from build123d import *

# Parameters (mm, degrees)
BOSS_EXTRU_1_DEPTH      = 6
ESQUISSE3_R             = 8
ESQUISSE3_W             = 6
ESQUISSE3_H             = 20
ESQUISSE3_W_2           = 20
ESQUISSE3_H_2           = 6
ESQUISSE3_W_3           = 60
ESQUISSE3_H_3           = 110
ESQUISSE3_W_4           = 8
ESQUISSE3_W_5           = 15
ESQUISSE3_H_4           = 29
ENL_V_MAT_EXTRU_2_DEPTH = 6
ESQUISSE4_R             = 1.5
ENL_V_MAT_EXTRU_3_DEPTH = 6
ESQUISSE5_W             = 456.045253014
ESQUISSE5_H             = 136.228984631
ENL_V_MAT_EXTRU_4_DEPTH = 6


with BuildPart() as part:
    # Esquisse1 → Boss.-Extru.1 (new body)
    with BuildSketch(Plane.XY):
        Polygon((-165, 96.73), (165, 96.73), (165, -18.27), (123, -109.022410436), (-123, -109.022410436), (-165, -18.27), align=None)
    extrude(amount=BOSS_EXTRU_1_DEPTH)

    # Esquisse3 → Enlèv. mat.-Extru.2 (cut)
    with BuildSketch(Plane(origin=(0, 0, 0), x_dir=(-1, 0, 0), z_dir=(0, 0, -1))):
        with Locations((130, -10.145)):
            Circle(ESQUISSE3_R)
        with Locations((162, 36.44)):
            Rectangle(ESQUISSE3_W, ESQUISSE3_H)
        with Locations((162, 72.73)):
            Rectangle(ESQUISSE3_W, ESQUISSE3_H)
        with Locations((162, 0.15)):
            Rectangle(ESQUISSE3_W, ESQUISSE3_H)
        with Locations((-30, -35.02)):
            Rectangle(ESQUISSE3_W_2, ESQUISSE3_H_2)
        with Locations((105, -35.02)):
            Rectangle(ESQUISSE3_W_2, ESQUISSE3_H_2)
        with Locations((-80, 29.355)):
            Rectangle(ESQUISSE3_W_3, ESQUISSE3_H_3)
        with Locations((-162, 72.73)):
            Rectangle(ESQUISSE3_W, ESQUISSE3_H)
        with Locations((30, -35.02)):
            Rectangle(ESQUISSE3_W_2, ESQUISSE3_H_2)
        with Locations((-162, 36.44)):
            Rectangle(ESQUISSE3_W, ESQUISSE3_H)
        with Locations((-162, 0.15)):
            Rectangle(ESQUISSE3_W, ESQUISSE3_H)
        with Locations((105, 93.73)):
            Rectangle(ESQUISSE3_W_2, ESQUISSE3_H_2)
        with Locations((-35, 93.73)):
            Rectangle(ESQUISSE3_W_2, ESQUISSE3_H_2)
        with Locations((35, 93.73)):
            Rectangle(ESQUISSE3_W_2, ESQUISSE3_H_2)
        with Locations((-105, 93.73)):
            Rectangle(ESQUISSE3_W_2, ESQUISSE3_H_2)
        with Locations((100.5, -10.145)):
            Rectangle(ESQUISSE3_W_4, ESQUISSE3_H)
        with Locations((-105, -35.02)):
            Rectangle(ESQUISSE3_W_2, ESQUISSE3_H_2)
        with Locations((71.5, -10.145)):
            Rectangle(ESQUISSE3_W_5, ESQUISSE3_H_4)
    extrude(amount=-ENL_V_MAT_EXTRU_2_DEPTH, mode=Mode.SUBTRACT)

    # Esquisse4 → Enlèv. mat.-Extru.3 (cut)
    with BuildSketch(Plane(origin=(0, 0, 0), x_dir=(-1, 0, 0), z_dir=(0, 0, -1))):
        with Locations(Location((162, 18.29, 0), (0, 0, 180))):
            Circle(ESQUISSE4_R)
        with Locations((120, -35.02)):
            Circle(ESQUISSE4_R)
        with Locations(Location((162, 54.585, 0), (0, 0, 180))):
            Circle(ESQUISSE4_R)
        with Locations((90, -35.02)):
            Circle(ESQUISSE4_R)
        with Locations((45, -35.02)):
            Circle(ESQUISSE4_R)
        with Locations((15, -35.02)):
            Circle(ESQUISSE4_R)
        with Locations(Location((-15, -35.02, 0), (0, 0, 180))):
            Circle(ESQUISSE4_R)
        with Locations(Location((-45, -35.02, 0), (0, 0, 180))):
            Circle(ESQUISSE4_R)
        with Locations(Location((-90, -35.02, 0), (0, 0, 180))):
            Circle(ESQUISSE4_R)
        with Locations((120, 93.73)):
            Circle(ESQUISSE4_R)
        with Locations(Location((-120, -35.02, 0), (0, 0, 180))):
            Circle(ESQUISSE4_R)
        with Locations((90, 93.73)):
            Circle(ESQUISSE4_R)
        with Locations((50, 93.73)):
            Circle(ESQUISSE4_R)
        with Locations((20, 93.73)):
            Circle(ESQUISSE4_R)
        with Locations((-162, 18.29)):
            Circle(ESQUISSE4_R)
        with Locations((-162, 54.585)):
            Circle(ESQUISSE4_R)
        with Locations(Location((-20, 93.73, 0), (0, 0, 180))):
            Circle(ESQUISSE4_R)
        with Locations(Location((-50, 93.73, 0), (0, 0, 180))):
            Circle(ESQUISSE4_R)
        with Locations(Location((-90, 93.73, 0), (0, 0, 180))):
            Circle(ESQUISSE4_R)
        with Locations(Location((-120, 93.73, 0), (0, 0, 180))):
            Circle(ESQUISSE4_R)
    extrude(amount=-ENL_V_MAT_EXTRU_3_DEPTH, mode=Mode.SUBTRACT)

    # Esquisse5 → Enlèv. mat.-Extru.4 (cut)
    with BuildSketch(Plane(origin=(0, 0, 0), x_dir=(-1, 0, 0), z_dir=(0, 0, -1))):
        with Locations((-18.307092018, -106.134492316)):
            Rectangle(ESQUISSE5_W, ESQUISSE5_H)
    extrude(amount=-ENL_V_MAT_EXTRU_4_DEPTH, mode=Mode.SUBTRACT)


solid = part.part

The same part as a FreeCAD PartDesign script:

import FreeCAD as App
import Part
import Sketcher

doc = App.newDocument("Part")
params = doc.addObject("Spreadsheet::Sheet", "Params")
for row, (alias, value) in enumerate([
    ("sketch1_width", "330 mm"),
    ("sketch1_width2", "246 mm"),
    ("sketch1_height", "115 mm"),
    ("sketch1_length", "100 mm"),
    ("pad1_length", "6 mm"),
    ("sketch2_diameter", "16 mm"),
    ("sketch2_width", "6 mm"),
    ("sketch2_width2", "20 mm"),
    ("sketch2_width3", "60 mm"),
    ("sketch2_width4", "8 mm"),
    ("pocket1_length", "6 mm"),
    ("sketch3_diameter", "3 mm"),
    ("pocket2_length", "6 mm"),
    ("pocket3_length", "6 mm"),
], start=1):
    params.set(f"A{row}", alias)
    params.set(f"B{row}", "=" + value)
    params.setAlias(f"B{row}", alias)

body = doc.addObject("PartDesign::Body", "Body")

# Sketch on XY plane
sketch1 = body.newObject("Sketcher::SketchObject", "Sketch")
sketch1.AttachmentSupport = (doc.getObject("XY_Plane"), [""])
sketch1.MapMode = "FlatFace"
sketch1.addGeometry(Part.LineSegment(App.Vector(165, 97, 0), App.Vector(-165, 97, 0)), False)
sketch1.addGeometry(Part.LineSegment(App.Vector(-165, 97, 0), App.Vector(-165, -18, 0)), False)
sketch1.addGeometry(Part.LineSegment(App.Vector(-165, -18, 0), App.Vector(-123, -109, 0)), False)
sketch1.addGeometry(Part.LineSegment(App.Vector(-123, -109, 0), App.Vector(123, -109, 0)), False)
sketch1.addGeometry(Part.LineSegment(App.Vector(123, -109, 0), App.Vector(165, -18, 0)), False)
sketch1.addGeometry(Part.LineSegment(App.Vector(165, -18, 0), App.Vector(165, 97, 0)), False)
sketch1.addConstraint(Sketcher.Constraint("Coincident", 0, 2, 1, 1))
sketch1.addConstraint(Sketcher.Constraint("Coincident", 1, 2, 2, 1))
sketch1.addConstraint(Sketcher.Constraint("Coincident", 2, 2, 3, 1))
sketch1.addConstraint(Sketcher.Constraint("Coincident", 3, 2, 4, 1))
sketch1.addConstraint(Sketcher.Constraint("Coincident", 4, 2, 5, 1))
sketch1.addConstraint(Sketcher.Constraint("Coincident", 5, 2, 0, 1))
sketch1.addConstraint(Sketcher.Constraint("Horizontal", 0))
sketch1.addConstraint(Sketcher.Constraint("Vertical", 1))
sketch1.addConstraint(Sketcher.Constraint("Horizontal", 3))
sketch1.addConstraint(Sketcher.Constraint("Vertical", 5))
sketch1.addConstraint(Sketcher.Constraint("Symmetric", 1, 2, 4, 2, -2))
sketch1.addConstraint(Sketcher.Constraint("Equal", 2, 4))
sketch1.addConstraint(Sketcher.Constraint("DistanceX", 0, 2, 0, 1, 330.0))
sketch1.addConstraint(Sketcher.Constraint("DistanceX", 3, 1, 3, 2, 246.0))
sketch1.addConstraint(Sketcher.Constraint("DistanceY", 1, 2, 1, 1, 115.0))
sketch1.addConstraint(Sketcher.Constraint("Distance", 2, 100.0))
sketch1.addConstraint(Sketcher.Constraint("DistanceY", -1, 1, 0, 2, 96.73))
sketch1.setExpression("Constraints[12]", "Params.sketch1_width")
sketch1.setExpression("Constraints[13]", "Params.sketch1_width2")
sketch1.setExpression("Constraints[14]", "Params.sketch1_height")
sketch1.setExpression("Constraints[15]", "Params.sketch1_length")
pad1 = body.newObject("PartDesign::Pad", "Pad")
pad1.Profile = sketch1
pad1.setExpression("Length", "Params.pad1_length")

# Sketch on XY plane
sketch2 = body.newObject("Sketcher::SketchObject", "Sketch001")
sketch2.AttachmentSupport = (doc.getObject("XY_Plane"), [""])
sketch2.MapMode = "FlatFace"
sketch2.addGeometry(Part.Circle(App.Vector(-130, -10, 0), App.Vector(0, 0, 1), 8), False)
sketch2.addGeometry(Part.LineSegment(App.Vector(-159, 46, 0), App.Vector(-159, 26, 0)), False)
sketch2.addGeometry(Part.LineSegment(App.Vector(-159, 26, 0), App.Vector(-165, 26, 0)), False)
sketch2.addGeometry(Part.LineSegment(App.Vector(-165, 26, 0), App.Vector(-165, 46, 0)), False)
sketch2.addGeometry(Part.LineSegment(App.Vector(-165, 46, 0), App.Vector(-159, 46, 0)), False)
sketch2.addGeometry(Part.LineSegment(App.Vector(-159, 83, 0), App.Vector(-159, 63, 0)), False)
sketch2.addGeometry(Part.LineSegment(App.Vector(-159, 63, 0), App.Vector(-165, 63, 0)), False)
sketch2.addGeometry(Part.LineSegment(App.Vector(-165, 63, 0), App.Vector(-165, 83, 0)), False)
sketch2.addGeometry(Part.LineSegment(App.Vector(-165, 83, 0), App.Vector(-159, 83, 0)), False)
sketch2.addGeometry(Part.LineSegment(App.Vector(-159, 10, 0), App.Vector(-159, -10, 0)), False)
sketch2.addGeometry(Part.LineSegment(App.Vector(-159, -10, 0), App.Vector(-165, -10, 0)), False)
sketch2.addGeometry(Part.LineSegment(App.Vector(-165, -10, 0), App.Vector(-165, 10, 0)), False)
sketch2.addGeometry(Part.LineSegment(App.Vector(-165, 10, 0), App.Vector(-159, 10, 0)), False)
sketch2.addGeometry(Part.LineSegment(App.Vector(40, -32, 0), App.Vector(40, -38, 0)), False)
sketch2.addGeometry(Part.LineSegment(App.Vector(40, -38, 0), App.Vector(20, -38, 0)), False)
sketch2.addGeometry(Part.LineSegment(App.Vector(20, -38, 0), App.Vector(20, -32, 0)), False)
sketch2.addGeometry(Part.LineSegment(App.Vector(20, -32, 0), App.Vector(40, -32, 0)), False)
sketch2.addGeometry(Part.LineSegment(App.Vector(-95, -32, 0), App.Vector(-95, -38, 0)), False)
sketch2.addGeometry(Part.LineSegment(App.Vector(-95, -38, 0), App.Vector(-115, -38, 0)), False)
sketch2.addGeometry(Part.LineSegment(App.Vector(-115, -38, 0), App.Vector(-115, -32, 0)), False)
sketch2.addGeometry(Part.LineSegment(App.Vector(-115, -32, 0), App.Vector(-95, -32, 0)), False)
sketch2.addGeometry(Part.LineSegment(App.Vector(110, 84, 0), App.Vector(110, -26, 0)), False)
sketch2.addGeometry(Part.LineSegment(App.Vector(110, -26, 0), App.Vector(50, -26, 0)), False)
sketch2.addGeometry(Part.LineSegment(App.Vector(50, -26, 0), App.Vector(50, 84, 0)), False)
sketch2.addGeometry(Part.LineSegment(App.Vector(50, 84, 0), App.Vector(110, 84, 0)), False)
sketch2.addGeometry(Part.LineSegment(App.Vector(165, 83, 0), App.Vector(165, 63, 0)), False)
sketch2.addGeometry(Part.LineSegment(App.Vector(165, 63, 0), App.Vector(159, 63, 0)), False)
sketch2.addGeometry(Part.LineSegment(App.Vector(159, 63, 0), App.Vector(159, 83, 0)), False)
sketch2.addGeometry(Part.LineSegment(App.Vector(159, 83, 0), App.Vector(165, 83, 0)), False)
sketch2.addGeometry(Part.LineSegment(App.Vector(-20, -32, 0), App.Vector(-20, -38, 0)), False)
sketch2.addGeometry(Part.LineSegment(App.Vector(-20, -38, 0), App.Vector(-40, -38, 0)), False)
sketch2.addGeometry(Part.LineSegment(App.Vector(-40, -38, 0), App.Vector(-40, -32, 0)), False)
sketch2.addGeometry(Part.LineSegment(App.Vector(-40, -32, 0), App.Vector(-20, -32, 0)), False)
sketch2.addGeometry(Part.LineSegment(App.Vector(165, 46, 0), App.Vector(165, 26, 0)), False)
sketch2.addGeometry(Part.LineSegment(App.Vector(165, 26, 0), App.Vector(159, 26, 0)), False)
sketch2.addGeometry(Part.LineSegment(App.Vector(159, 26, 0), App.Vector(159, 46, 0)), False)
sketch2.addGeometry(Part.LineSegment(App.Vector(159, 46, 0), App.Vector(165, 46, 0)), False)
sketch2.addGeometry(Part.LineSegment(App.Vector(165, 10, 0), App.Vector(165, -10, 0)), False)
sketch2.addGeometry(Part.LineSegment(App.Vector(165, -10, 0), App.Vector(159, -10, 0)), False)
sketch2.addGeometry(Part.LineSegment(App.Vector(159, -10, 0), App.Vector(159, 10, 0)), False)
sketch2.addGeometry(Part.LineSegment(App.Vector(159, 10, 0), App.Vector(165, 10, 0)), False)
sketch2.addGeometry(Part.LineSegment(App.Vector(-95, 97, 0), App.Vector(-95, 91, 0)), False)
sketch2.addGeometry(Part.LineSegment(App.Vector(-95, 91, 0), App.Vector(-115, 91, 0)), False)
sketch2.addGeometry(Part.LineSegment(App.Vector(-115, 91, 0), App.Vector(-115, 97, 0)), False)
sketch2.addGeometry(Part.LineSegment(App.Vector(-115, 97, 0), App.Vector(-95, 97, 0)), False)
sketch2.addGeometry(Part.LineSegment(App.Vector(45, 97, 0), App.Vector(45, 91, 0)), False)
sketch2.addGeometry(Part.LineSegment(App.Vector(45, 91, 0), App.Vector(25, 91, 0)), False)
sketch2.addGeometry(Part.LineSegment(App.Vector(25, 91, 0), App.Vector(25, 97, 0)), False)
sketch2.addGeometry(Part.LineSegment(App.Vector(25, 97, 0), App.Vector(45, 97, 0)), False)
sketch2.addGeometry(Part.LineSegment(App.Vector(-25, 97, 0), App.Vector(-25, 91, 0)), False)
sketch2.addGeometry(Part.LineSegment(App.Vector(-25, 91, 0), App.Vector(-45, 91, 0)), False)
sketch2.addGeometry(Part.LineSegment(App.Vector(-45, 91, 0), App.Vector(-45, 97, 0)), False)
sketch2.addGeometry(Part.LineSegment(App.Vector(-45, 97, 0), App.Vector(-25, 97, 0)), False)
sketch2.addGeometry(Part.LineSegment(App.Vector(115, 97, 0), App.Vector(115, 91, 0)), False)
sketch2.addGeometry(Part.LineSegment(App.Vector(115, 91, 0), App.Vector(95, 91, 0)), False)
sketch2.addGeometry(Part.LineSegment(App.Vector(95, 91, 0), App.Vector(95, 97, 0)), False)
sketch2.addGeometry(Part.LineSegment(App.Vector(95, 97, 0), App.Vector(115, 97, 0)), False)
sketch2.addGeometry(Part.LineSegment(App.Vector(-96, 0, 0), App.Vector(-96, -20, 0)), False)
sketch2.addGeometry(Part.LineSegment(App.Vector(-96, -20, 0), App.Vector(-104, -20, 0)), False)
sketch2.addGeometry(Part.LineSegment(App.Vector(-104, -20, 0), App.Vector(-104, 0, 0)), False)
sketch2.addGeometry(Part.LineSegment(App.Vector(-104, 0, 0), App.Vector(-96, 0, 0)), False)
sketch2.addGeometry(Part.LineSegment(App.Vector(115, -32, 0), App.Vector(115, -38, 0)), False)
sketch2.addGeometry(Part.LineSegment(App.Vector(115, -38, 0), App.Vector(95, -38, 0)), False)
sketch2.addGeometry(Part.LineSegment(App.Vector(95, -38, 0), App.Vector(95, -32, 0)), False)
sketch2.addGeometry(Part.LineSegment(App.Vector(95, -32, 0), App.Vector(115, -32, 0)), False)
sketch2.addGeometry(Part.LineSegment(App.Vector(-64, 4, 0), App.Vector(-64, -25, 0)), False)
sketch2.addGeometry(Part.LineSegment(App.Vector(-64, -25, 0), App.Vector(-79, -25, 0)), False)
sketch2.addGeometry(Part.LineSegment(App.Vector(-79, -25, 0), App.Vector(-79, 4, 0)), False)
sketch2.addGeometry(Part.LineSegment(App.Vector(-79, 4, 0), App.Vector(-64, 4, 0)), False)
sketch2.addConstraint(Sketcher.Constraint("Coincident", 1, 2, 2, 1))
sketch2.addConstraint(Sketcher.Constraint("Coincident", 2, 2, 3, 1))
sketch2.addConstraint(Sketcher.Constraint("Coincident", 3, 2, 4, 1))
sketch2.addConstraint(Sketcher.Constraint("Coincident", 4, 2, 1, 1))
sketch2.addConstraint(Sketcher.Constraint("Coincident", 5, 2, 6, 1))
sketch2.addConstraint(Sketcher.Constraint("Coincident", 6, 2, 7, 1))
sketch2.addConstraint(Sketcher.Constraint("Coincident", 7, 2, 8, 1))
sketch2.addConstraint(Sketcher.Constraint("Coincident", 8, 2, 5, 1))
sketch2.addConstraint(Sketcher.Constraint("Coincident", 9, 2, 10, 1))
sketch2.addConstraint(Sketcher.Constraint("Coincident", 10, 2, 11, 1))
sketch2.addConstraint(Sketcher.Constraint("Coincident", 11, 2, 12, 1))
sketch2.addConstraint(Sketcher.Constraint("Coincident", 12, 2, 9, 1))
sketch2.addConstraint(Sketcher.Constraint("Coincident", 13, 2, 14, 1))
sketch2.addConstraint(Sketcher.Constraint("Coincident", 14, 2, 15, 1))
sketch2.addConstraint(Sketcher.Constraint("Coincident", 15, 2, 16, 1))
sketch2.addConstraint(Sketcher.Constraint("Coincident", 16, 2, 13, 1))
sketch2.addConstraint(Sketcher.Constraint("Coincident", 17, 2, 18, 1))
sketch2.addConstraint(Sketcher.Constraint("Coincident", 18, 2, 19, 1))
sketch2.addConstraint(Sketcher.Constraint("Coincident", 19, 2, 20, 1))
sketch2.addConstraint(Sketcher.Constraint("Coincident", 20, 2, 17, 1))
sketch2.addConstraint(Sketcher.Constraint("Coincident", 21, 2, 22, 1))
sketch2.addConstraint(Sketcher.Constraint("Coincident", 22, 2, 23, 1))
sketch2.addConstraint(Sketcher.Constraint("Coincident", 23, 2, 24, 1))
sketch2.addConstraint(Sketcher.Constraint("Coincident", 24, 2, 21, 1))
sketch2.addConstraint(Sketcher.Constraint("Coincident", 25, 2, 26, 1))
sketch2.addConstraint(Sketcher.Constraint("Coincident", 26, 2, 27, 1))
sketch2.addConstraint(Sketcher.Constraint("Coincident", 27, 2, 28, 1))
sketch2.addConstraint(Sketcher.Constraint("Coincident", 28, 2, 25, 1))
sketch2.addConstraint(Sketcher.Constraint("Coincident", 29, 2, 30, 1))
sketch2.addConstraint(Sketcher.Constraint("Coincident", 30, 2, 31, 1))
sketch2.addConstraint(Sketcher.Constraint("Coincident", 31, 2, 32, 1))
sketch2.addConstraint(Sketcher.Constraint("Coincident", 32, 2, 29, 1))
sketch2.addConstraint(Sketcher.Constraint("Coincident", 33, 2, 34, 1))
sketch2.addConstraint(Sketcher.Constraint("Coincident", 34, 2, 35, 1))
sketch2.addConstraint(Sketcher.Constraint("Coincident", 35, 2, 36, 1))
sketch2.addConstraint(Sketcher.Constraint("Coincident", 36, 2, 33, 1))
sketch2.addConstraint(Sketcher.Constraint("Coincident", 37, 2, 38, 1))
sketch2.addConstraint(Sketcher.Constraint("Coincident", 38, 2, 39, 1))
sketch2.addConstraint(Sketcher.Constraint("Coincident", 39, 2, 40, 1))
sketch2.addConstraint(Sketcher.Constraint("Coincident", 40, 2, 37, 1))
sketch2.addConstraint(Sketcher.Constraint("Coincident", 41, 2, 42, 1))
sketch2.addConstraint(Sketcher.Constraint("Coincident", 42, 2, 43, 1))
sketch2.addConstraint(Sketcher.Constraint("Coincident", 43, 2, 44, 1))
sketch2.addConstraint(Sketcher.Constraint("Coincident", 44, 2, 41, 1))
sketch2.addConstraint(Sketcher.Constraint("Coincident", 45, 2, 46, 1))
sketch2.addConstraint(Sketcher.Constraint("Coincident", 46, 2, 47, 1))
sketch2.addConstraint(Sketcher.Constraint("Coincident", 47, 2, 48, 1))
sketch2.addConstraint(Sketcher.Constraint("Coincident", 48, 2, 45, 1))
sketch2.addConstraint(Sketcher.Constraint("Coincident", 49, 2, 50, 1))
sketch2.addConstraint(Sketcher.Constraint("Coincident", 50, 2, 51, 1))
sketch2.addConstraint(Sketcher.Constraint("Coincident", 51, 2, 52, 1))
sketch2.addConstraint(Sketcher.Constraint("Coincident", 52, 2, 49, 1))
sketch2.addConstraint(Sketcher.Constraint("Coincident", 53, 2, 54, 1))
sketch2.addConstraint(Sketcher.Constraint("Coincident", 54, 2, 55, 1))
sketch2.addConstraint(Sketcher.Constraint("Coincident", 55, 2, 56, 1))
sketch2.addConstraint(Sketcher.Constraint("Coincident", 56, 2, 53, 1))
sketch2.addConstraint(Sketcher.Constraint("Coincident", 57, 2, 58, 1))
sketch2.addConstraint(Sketcher.Constraint("Coincident", 58, 2, 59, 1))
sketch2.addConstraint(Sketcher.Constraint("Coincident", 59, 2, 60, 1))
sketch2.addConstraint(Sketcher.Constraint("Coincident", 60, 2, 57, 1))
sketch2.addConstraint(Sketcher.Constraint("Coincident", 61, 2, 62, 1))
sketch2.addConstraint(Sketcher.Constraint("Coincident", 62, 2, 63, 1))
sketch2.addConstraint(Sketcher.Constraint("Coincident", 63, 2, 64, 1))
sketch2.addConstraint(Sketcher.Constraint("Coincident", 64, 2, 61, 1))
sketch2.addConstraint(Sketcher.Constraint("Coincident", 65, 2, 66, 1))
sketch2.addConstraint(Sketcher.Constraint("Coincident", 66, 2, 67, 1))
sketch2.addConstraint(Sketcher.Constraint("Coincident", 67, 2, 68, 1))
sketch2.addConstraint(Sketcher.Constraint("Coincident", 68, 2, 65, 1))
sketch2.addConstraint(Sketcher.Constraint("Vertical", 1))
sketch2.addConstraint(Sketcher.Constraint("Horizontal", 2))
sketch2.addConstraint(Sketcher.Constraint("Vertical", 3))
sketch2.addConstraint(Sketcher.Constraint("Horizontal", 4))
sketch2.addConstraint(Sketcher.Constraint("Vertical", 5))
sketch2.addConstraint(Sketcher.Constraint("Horizontal", 6))
sketch2.addConstraint(Sketcher.Constraint("Vertical", 7))
sketch2.addConstraint(Sketcher.Constraint("Horizontal", 8))
sketch2.addConstraint(Sketcher.Constraint("Vertical", 9))
sketch2.addConstraint(Sketcher.Constraint("Horizontal", 10))
sketch2.addConstraint(Sketcher.Constraint("Vertical", 11))
sketch2.addConstraint(Sketcher.Constraint("Horizontal", 12))
sketch2.addConstraint(Sketcher.Constraint("Vertical", 13))
sketch2.addConstraint(Sketcher.Constraint("Horizontal", 14))
sketch2.addConstraint(Sketcher.Constraint("Vertical", 15))
sketch2.addConstraint(Sketcher.Constraint("Horizontal", 16))
sketch2.addConstraint(Sketcher.Constraint("Vertical", 17))
sketch2.addConstraint(Sketcher.Constraint("Horizontal", 18))
sketch2.addConstraint(Sketcher.Constraint("Vertical", 19))
sketch2.addConstraint(Sketcher.Constraint("Horizontal", 20))
sketch2.addConstraint(Sketcher.Constraint("Vertical", 21))
sketch2.addConstraint(Sketcher.Constraint("Horizontal", 22))
sketch2.addConstraint(Sketcher.Constraint("Vertical", 23))
sketch2.addConstraint(Sketcher.Constraint("Horizontal", 24))
sketch2.addConstraint(Sketcher.Constraint("Vertical", 25))
sketch2.addConstraint(Sketcher.Constraint("Horizontal", 26))
sketch2.addConstraint(Sketcher.Constraint("Vertical", 27))
sketch2.addConstraint(Sketcher.Constraint("Horizontal", 28))
sketch2.addConstraint(Sketcher.Constraint("Vertical", 29))
sketch2.addConstraint(Sketcher.Constraint("Horizontal", 30))
sketch2.addConstraint(Sketcher.Constraint("Vertical", 31))
sketch2.addConstraint(Sketcher.Constraint("Horizontal", 32))
sketch2.addConstraint(Sketcher.Constraint("Vertical", 33))
sketch2.addConstraint(Sketcher.Constraint("Horizontal", 34))
sketch2.addConstraint(Sketcher.Constraint("Vertical", 35))
sketch2.addConstraint(Sketcher.Constraint("Horizontal", 36))
sketch2.addConstraint(Sketcher.Constraint("Vertical", 37))
sketch2.addConstraint(Sketcher.Constraint("Horizontal", 38))
sketch2.addConstraint(Sketcher.Constraint("Vertical", 39))
sketch2.addConstraint(Sketcher.Constraint("Horizontal", 40))
sketch2.addConstraint(Sketcher.Constraint("Vertical", 41))
sketch2.addConstraint(Sketcher.Constraint("Horizontal", 42))
sketch2.addConstraint(Sketcher.Constraint("Vertical", 43))
sketch2.addConstraint(Sketcher.Constraint("Horizontal", 44))
sketch2.addConstraint(Sketcher.Constraint("Vertical", 45))
sketch2.addConstraint(Sketcher.Constraint("Horizontal", 46))
sketch2.addConstraint(Sketcher.Constraint("Vertical", 47))
sketch2.addConstraint(Sketcher.Constraint("Horizontal", 48))
sketch2.addConstraint(Sketcher.Constraint("Vertical", 49))
sketch2.addConstraint(Sketcher.Constraint("Horizontal", 50))
sketch2.addConstraint(Sketcher.Constraint("Vertical", 51))
sketch2.addConstraint(Sketcher.Constraint("Horizontal", 52))
sketch2.addConstraint(Sketcher.Constraint("Vertical", 53))
sketch2.addConstraint(Sketcher.Constraint("Horizontal", 54))
sketch2.addConstraint(Sketcher.Constraint("Vertical", 55))
sketch2.addConstraint(Sketcher.Constraint("Horizontal", 56))
sketch2.addConstraint(Sketcher.Constraint("Vertical", 57))
sketch2.addConstraint(Sketcher.Constraint("Horizontal", 58))
sketch2.addConstraint(Sketcher.Constraint("Vertical", 59))
sketch2.addConstraint(Sketcher.Constraint("Horizontal", 60))
sketch2.addConstraint(Sketcher.Constraint("Vertical", 61))
sketch2.addConstraint(Sketcher.Constraint("Horizontal", 62))
sketch2.addConstraint(Sketcher.Constraint("Vertical", 63))
sketch2.addConstraint(Sketcher.Constraint("Horizontal", 64))
sketch2.addConstraint(Sketcher.Constraint("Vertical", 65))
sketch2.addConstraint(Sketcher.Constraint("Horizontal", 66))
sketch2.addConstraint(Sketcher.Constraint("Vertical", 67))
sketch2.addConstraint(Sketcher.Constraint("Horizontal", 68))
sketch2.addConstraint(Sketcher.Constraint("Symmetric", 6, 2, 25, 2, -2))
sketch2.addConstraint(Sketcher.Constraint("Symmetric", 8, 2, 27, 2, -2))
sketch2.addConstraint(Sketcher.Constraint("Symmetric", 14, 2, 29, 2, -2))
sketch2.addConstraint(Sketcher.Constraint("Symmetric", 16, 2, 31, 2, -2))
sketch2.addConstraint(Sketcher.Constraint("Symmetric", 2, 2, 33, 2, -2))
sketch2.addConstraint(Sketcher.Constraint("Symmetric", 4, 2, 35, 2, -2))
sketch2.addConstraint(Sketcher.Constraint("Symmetric", 10, 2, 37, 2, -2))
sketch2.addConstraint(Sketcher.Constraint("Symmetric", 12, 2, 39, 2, -2))
sketch2.addConstraint(Sketcher.Constraint("Symmetric", 46, 2, 49, 2, -2))
sketch2.addConstraint(Sketcher.Constraint("Symmetric", 48, 2, 51, 2, -2))
sketch2.addConstraint(Sketcher.Constraint("Symmetric", 42, 2, 53, 2, -2))
sketch2.addConstraint(Sketcher.Constraint("Symmetric", 44, 2, 55, 2, -2))
sketch2.addConstraint(Sketcher.Constraint("Symmetric", 18, 2, 61, 2, -2))
sketch2.addConstraint(Sketcher.Constraint("Symmetric", 20, 2, 63, 2, -2))
sketch2.addConstraint(Sketcher.Constraint("Horizontal", 14, 2, 17, 2))
sketch2.addConstraint(Sketcher.Constraint("Horizontal", 16, 2, 19, 2))
sketch2.addConstraint(Sketcher.Constraint("Horizontal", 42, 2, 45, 2))
sketch2.addConstraint(Sketcher.Constraint("Horizontal", 44, 2, 47, 2))
sketch2.addConstraint(Sketcher.Constraint("Vertical", 4, 2, 5, 2))
sketch2.addConstraint(Sketcher.Constraint("Vertical", 3, 2, 6, 2))
sketch2.addConstraint(Sketcher.Constraint("Vertical", 8, 2, 9, 2))
sketch2.addConstraint(Sketcher.Constraint("Vertical", 7, 2, 10, 2))
sketch2.addConstraint(Sketcher.Constraint("Vertical", 20, 2, 41, 2))
sketch2.addConstraint(Sketcher.Constraint("Vertical", 19, 2, 42, 2))
sketch2.addConstraint(Sketcher.Constraint("Equal", 16, 18))
sketch2.addConstraint(Sketcher.Constraint("Equal", 44, 46))
sketch2.addConstraint(Sketcher.Constraint("Equal", 64, 1))
sketch2.addConstraint(Sketcher.Constraint("Equal", 3, 5))
sketch2.addConstraint(Sketcher.Constraint("Equal", 7, 9))
sketch2.addConstraint(Sketcher.Constraint("Equal", 40, 13))
sketch2.addConstraint(Sketcher.Constraint("Equal", 31, 41))
sketch2.addConstraint(Sketcher.Constraint("Equal", 39, 57))
sketch2.addConstraint(Sketcher.Constraint("Diameter", 0, 16.0))
sketch2.addConstraint(Sketcher.Constraint("DistanceX", 2, 2, 2, 1, 6.0))
sketch2.addConstraint(Sketcher.Constraint("DistanceX", 14, 2, 14, 1, 20.0))
sketch2.addConstraint(Sketcher.Constraint("DistanceX", 22, 2, 22, 1, 60.0))
sketch2.addConstraint(Sketcher.Constraint("DistanceX", 58, 2, 58, 1, 8.0))
sketch2.addConstraint(Sketcher.Constraint("DistanceX", 66, 2, 66, 1, 15.0))
sketch2.addConstraint(Sketcher.Constraint("DistanceY", 21, 2, 21, 1, 110.0))
sketch2.addConstraint(Sketcher.Constraint("DistanceY", 65, 2, 65, 1, 29.0))
sketch2.addConstraint(Sketcher.Constraint("DistanceX", 0, 3, -1, 1, 130.0))
sketch2.addConstraint(Sketcher.Constraint("DistanceX", 1, 2, -1, 1, 159.0))
sketch2.addConstraint(Sketcher.Constraint("DistanceX", -1, 1, 13, 2, 40.0))
sketch2.addConstraint(Sketcher.Constraint("DistanceX", 17, 2, -1, 1, 95.0))
sketch2.addConstraint(Sketcher.Constraint("DistanceX", -1, 1, 21, 2, 110.0))
sketch2.addConstraint(Sketcher.Constraint("DistanceX", -1, 1, 45, 2, 45.0))
sketch2.addConstraint(Sketcher.Constraint("DistanceX", 65, 2, -1, 1, 64.0))
sketch2.addConstraint(Sketcher.Constraint("DistanceX", 57, 2, -1, 1, 96.5))
sketch2.addConstraint(Sketcher.Constraint("DistanceY", -1, 1, 1, 2, 26.44))
sketch2.addConstraint(Sketcher.Constraint("DistanceY", -1, 1, 5, 2, 62.73))
sketch2.addConstraint(Sketcher.Constraint("DistanceY", 9, 2, -1, 1, 9.85))
sketch2.addConstraint(Sketcher.Constraint("DistanceY", 13, 2, -1, 1, 38.02))
sketch2.addConstraint(Sketcher.Constraint("DistanceY", -1, 1, 41, 2, 90.73))
sketch2.addConstraint(Sketcher.Constraint("DistanceY", 0, 3, -1, 1, 10.145))
sketch2.addConstraint(Sketcher.Constraint("DistanceY", 21, 2, -1, 1, 25.645))
sketch2.addConstraint(Sketcher.Constraint("DistanceY", 57, 2, -1, 1, 20.145))
sketch2.addConstraint(Sketcher.Constraint("DistanceY", 65, 2, -1, 1, 24.645))
sketch2.setExpression("Constraints[168]", "Params.sketch2_diameter")
sketch2.setExpression("Constraints[169]", "Params.sketch2_width")
sketch2.setExpression("Constraints[170]", "Params.sketch2_width2")
sketch2.setExpression("Constraints[171]", "Params.sketch2_width3")
sketch2.setExpression("Constraints[172]", "Params.sketch2_width4")
pocket1 = body.newObject("PartDesign::Pocket", "Pocket")
pocket1.Profile = sketch2
pocket1.setExpression("Length", "Params.pocket1_length")
pocket1.Reversed = True

# Sketch on XY plane
sketch3 = body.newObject("Sketcher::SketchObject", "Sketch002")
sketch3.AttachmentSupport = (doc.getObject("XY_Plane"), [""])
sketch3.MapMode = "FlatFace"
sketch3.addGeometry(Part.Circle(App.Vector(-162, 18.3, 0), App.Vector(0, 0, 1), 1.5), False)
sketch3.addGeometry(Part.Circle(App.Vector(-120, -35, 0), App.Vector(0, 0, 1), 1.5), False)
sketch3.addGeometry(Part.Circle(App.Vector(-162, 54.6, 0), App.Vector(0, 0, 1), 1.5), False)
sketch3.addGeometry(Part.Circle(App.Vector(-90, -35, 0), App.Vector(0, 0, 1), 1.5), False)
sketch3.addGeometry(Part.Circle(App.Vector(-45, -35, 0), App.Vector(0, 0, 1), 1.5), False)
sketch3.addGeometry(Part.Circle(App.Vector(-15, -35, 0), App.Vector(0, 0, 1), 1.5), False)
sketch3.addGeometry(Part.Circle(App.Vector(15, -35, 0), App.Vector(0, 0, 1), 1.5), False)
sketch3.addGeometry(Part.Circle(App.Vector(45, -35, 0), App.Vector(0, 0, 1), 1.5), False)
sketch3.addGeometry(Part.Circle(App.Vector(90, -35, 0), App.Vector(0, 0, 1), 1.5), False)
sketch3.addGeometry(Part.Circle(App.Vector(-120, 93.7, 0), App.Vector(0, 0, 1), 1.5), False)
sketch3.addGeometry(Part.Circle(App.Vector(120, -35, 0), App.Vector(0, 0, 1), 1.5), False)
sketch3.addGeometry(Part.Circle(App.Vector(-90, 93.7, 0), App.Vector(0, 0, 1), 1.5), False)
sketch3.addGeometry(Part.Circle(App.Vector(-50, 93.7, 0), App.Vector(0, 0, 1), 1.5), False)
sketch3.addGeometry(Part.Circle(App.Vector(-20, 93.7, 0), App.Vector(0, 0, 1), 1.5), False)
sketch3.addGeometry(Part.Circle(App.Vector(162, 18.3, 0), App.Vector(0, 0, 1), 1.5), False)
sketch3.addGeometry(Part.Circle(App.Vector(162, 54.6, 0), App.Vector(0, 0, 1), 1.5), False)
sketch3.addGeometry(Part.Circle(App.Vector(20, 93.7, 0), App.Vector(0, 0, 1), 1.5), False)
sketch3.addGeometry(Part.Circle(App.Vector(50, 93.7, 0), App.Vector(0, 0, 1), 1.5), False)
sketch3.addGeometry(Part.Circle(App.Vector(90, 93.7, 0), App.Vector(0, 0, 1), 1.5), False)
sketch3.addGeometry(Part.Circle(App.Vector(120, 93.7, 0), App.Vector(0, 0, 1), 1.5), False)
sketch3.addConstraint(Sketcher.Constraint("Equal", 0, 1))
sketch3.addConstraint(Sketcher.Constraint("Equal", 1, 2))
sketch3.addConstraint(Sketcher.Constraint("Equal", 2, 3))
sketch3.addConstraint(Sketcher.Constraint("Equal", 3, 4))
sketch3.addConstraint(Sketcher.Constraint("Equal", 4, 5))
sketch3.addConstraint(Sketcher.Constraint("Equal", 5, 6))
sketch3.addConstraint(Sketcher.Constraint("Equal", 6, 7))
sketch3.addConstraint(Sketcher.Constraint("Equal", 7, 8))
sketch3.addConstraint(Sketcher.Constraint("Equal", 8, 9))
sketch3.addConstraint(Sketcher.Constraint("Equal", 9, 10))
sketch3.addConstraint(Sketcher.Constraint("Equal", 10, 11))
sketch3.addConstraint(Sketcher.Constraint("Equal", 11, 12))
sketch3.addConstraint(Sketcher.Constraint("Equal", 12, 13))
sketch3.addConstraint(Sketcher.Constraint("Equal", 13, 14))
sketch3.addConstraint(Sketcher.Constraint("Equal", 14, 15))
sketch3.addConstraint(Sketcher.Constraint("Equal", 15, 16))
sketch3.addConstraint(Sketcher.Constraint("Equal", 16, 17))
sketch3.addConstraint(Sketcher.Constraint("Equal", 17, 18))
sketch3.addConstraint(Sketcher.Constraint("Equal", 18, 19))
sketch3.addConstraint(Sketcher.Constraint("Symmetric", 5, 3, 6, 3, -2))
sketch3.addConstraint(Sketcher.Constraint("Symmetric", 4, 3, 7, 3, -2))
sketch3.addConstraint(Sketcher.Constraint("Symmetric", 3, 3, 8, 3, -2))
sketch3.addConstraint(Sketcher.Constraint("Symmetric", 1, 3, 10, 3, -2))
sketch3.addConstraint(Sketcher.Constraint("Symmetric", 0, 3, 14, 3, -2))
sketch3.addConstraint(Sketcher.Constraint("Symmetric", 2, 3, 15, 3, -2))
sketch3.addConstraint(Sketcher.Constraint("Symmetric", 13, 3, 16, 3, -2))
sketch3.addConstraint(Sketcher.Constraint("Symmetric", 12, 3, 17, 3, -2))
sketch3.addConstraint(Sketcher.Constraint("Symmetric", 11, 3, 18, 3, -2))
sketch3.addConstraint(Sketcher.Constraint("Symmetric", 9, 3, 19, 3, -2))
sketch3.addConstraint(Sketcher.Constraint("Horizontal", 1, 3, 3, 3))
sketch3.addConstraint(Sketcher.Constraint("Horizontal", 3, 3, 4, 3))
sketch3.addConstraint(Sketcher.Constraint("Horizontal", 4, 3, 5, 3))
sketch3.addConstraint(Sketcher.Constraint("Horizontal", 9, 3, 11, 3))
sketch3.addConstraint(Sketcher.Constraint("Horizontal", 11, 3, 12, 3))
sketch3.addConstraint(Sketcher.Constraint("Horizontal", 12, 3, 13, 3))
sketch3.addConstraint(Sketcher.Constraint("Vertical", 0, 3, 2, 3))
sketch3.addConstraint(Sketcher.Constraint("Vertical", 1, 3, 9, 3))
sketch3.addConstraint(Sketcher.Constraint("Vertical", 3, 3, 11, 3))
sketch3.addConstraint(Sketcher.Constraint("Diameter", 0, 3.0))
sketch3.addConstraint(Sketcher.Constraint("DistanceX", 0, 3, -1, 1, 162.0))
sketch3.addConstraint(Sketcher.Constraint("DistanceX", 1, 3, -1, 1, 120.0))
sketch3.addConstraint(Sketcher.Constraint("DistanceX", 3, 3, -1, 1, 90.0))
sketch3.addConstraint(Sketcher.Constraint("DistanceX", 4, 3, -1, 1, 45.0))
sketch3.addConstraint(Sketcher.Constraint("DistanceX", 5, 3, -1, 1, 15.0))
sketch3.addConstraint(Sketcher.Constraint("DistanceX", 12, 3, -1, 1, 50.0))
sketch3.addConstraint(Sketcher.Constraint("DistanceX", 13, 3, -1, 1, 20.0))
sketch3.addConstraint(Sketcher.Constraint("DistanceY", -1, 1, 0, 3, 18.29))
sketch3.addConstraint(Sketcher.Constraint("DistanceY", 1, 3, -1, 1, 35.02))
sketch3.addConstraint(Sketcher.Constraint("DistanceY", -1, 1, 9, 3, 93.73))
sketch3.addConstraint(Sketcher.Constraint("DistanceY", -1, 1, 2, 3, 54.585))
sketch3.setExpression("Constraints[38]", "Params.sketch3_diameter")
pocket2 = body.newObject("PartDesign::Pocket", "Pocket001")
pocket2.Profile = sketch3
pocket2.setExpression("Length", "Params.pocket2_length")
pocket2.Reversed = True

# Sketch on XY plane
sketch4 = body.newObject("Sketcher::SketchObject", "Sketch003")
sketch4.AttachmentSupport = (doc.getObject("XY_Plane"), [""])
sketch4.MapMode = "FlatFace"
sketch4.addGeometry(Part.LineSegment(App.Vector(246, -38, 0), App.Vector(246, -174, 0)), False)
sketch4.addGeometry(Part.LineSegment(App.Vector(246, -174, 0), App.Vector(-210, -174, 0)), False)
sketch4.addGeometry(Part.LineSegment(App.Vector(-210, -174, 0), App.Vector(-210, -38, 0)), False)
sketch4.addGeometry(Part.LineSegment(App.Vector(-210, -38, 0), App.Vector(246, -38, 0)), False)
sketch4.addConstraint(Sketcher.Constraint("Coincident", 0, 2, 1, 1))
sketch4.addConstraint(Sketcher.Constraint("Coincident", 1, 2, 2, 1))
sketch4.addConstraint(Sketcher.Constraint("Coincident", 2, 2, 3, 1))
sketch4.addConstraint(Sketcher.Constraint("Coincident", 3, 2, 0, 1))
sketch4.addConstraint(Sketcher.Constraint("Vertical", 0))
sketch4.addConstraint(Sketcher.Constraint("Horizontal", 1))
sketch4.addConstraint(Sketcher.Constraint("Vertical", 2))
sketch4.addConstraint(Sketcher.Constraint("Horizontal", 3))
sketch4.addConstraint(Sketcher.Constraint("DistanceY", 2, 2, -1, 1, 38.02))
sketch4.addConstraint(Sketcher.Constraint("DistanceX", 1, 2, 1, 1, 456.045253))
sketch4.addConstraint(Sketcher.Constraint("DistanceY", 0, 2, 0, 1, 136.228985))
sketch4.addConstraint(Sketcher.Constraint("DistanceX", -1, 1, 0, 2, 246.329719))
pocket3 = body.newObject("PartDesign::Pocket", "Pocket002")
pocket3.Profile = sketch4
pocket3.setExpression("Length", "Params.pocket3_length")
pocket3.Reversed = True

doc.recompute()
